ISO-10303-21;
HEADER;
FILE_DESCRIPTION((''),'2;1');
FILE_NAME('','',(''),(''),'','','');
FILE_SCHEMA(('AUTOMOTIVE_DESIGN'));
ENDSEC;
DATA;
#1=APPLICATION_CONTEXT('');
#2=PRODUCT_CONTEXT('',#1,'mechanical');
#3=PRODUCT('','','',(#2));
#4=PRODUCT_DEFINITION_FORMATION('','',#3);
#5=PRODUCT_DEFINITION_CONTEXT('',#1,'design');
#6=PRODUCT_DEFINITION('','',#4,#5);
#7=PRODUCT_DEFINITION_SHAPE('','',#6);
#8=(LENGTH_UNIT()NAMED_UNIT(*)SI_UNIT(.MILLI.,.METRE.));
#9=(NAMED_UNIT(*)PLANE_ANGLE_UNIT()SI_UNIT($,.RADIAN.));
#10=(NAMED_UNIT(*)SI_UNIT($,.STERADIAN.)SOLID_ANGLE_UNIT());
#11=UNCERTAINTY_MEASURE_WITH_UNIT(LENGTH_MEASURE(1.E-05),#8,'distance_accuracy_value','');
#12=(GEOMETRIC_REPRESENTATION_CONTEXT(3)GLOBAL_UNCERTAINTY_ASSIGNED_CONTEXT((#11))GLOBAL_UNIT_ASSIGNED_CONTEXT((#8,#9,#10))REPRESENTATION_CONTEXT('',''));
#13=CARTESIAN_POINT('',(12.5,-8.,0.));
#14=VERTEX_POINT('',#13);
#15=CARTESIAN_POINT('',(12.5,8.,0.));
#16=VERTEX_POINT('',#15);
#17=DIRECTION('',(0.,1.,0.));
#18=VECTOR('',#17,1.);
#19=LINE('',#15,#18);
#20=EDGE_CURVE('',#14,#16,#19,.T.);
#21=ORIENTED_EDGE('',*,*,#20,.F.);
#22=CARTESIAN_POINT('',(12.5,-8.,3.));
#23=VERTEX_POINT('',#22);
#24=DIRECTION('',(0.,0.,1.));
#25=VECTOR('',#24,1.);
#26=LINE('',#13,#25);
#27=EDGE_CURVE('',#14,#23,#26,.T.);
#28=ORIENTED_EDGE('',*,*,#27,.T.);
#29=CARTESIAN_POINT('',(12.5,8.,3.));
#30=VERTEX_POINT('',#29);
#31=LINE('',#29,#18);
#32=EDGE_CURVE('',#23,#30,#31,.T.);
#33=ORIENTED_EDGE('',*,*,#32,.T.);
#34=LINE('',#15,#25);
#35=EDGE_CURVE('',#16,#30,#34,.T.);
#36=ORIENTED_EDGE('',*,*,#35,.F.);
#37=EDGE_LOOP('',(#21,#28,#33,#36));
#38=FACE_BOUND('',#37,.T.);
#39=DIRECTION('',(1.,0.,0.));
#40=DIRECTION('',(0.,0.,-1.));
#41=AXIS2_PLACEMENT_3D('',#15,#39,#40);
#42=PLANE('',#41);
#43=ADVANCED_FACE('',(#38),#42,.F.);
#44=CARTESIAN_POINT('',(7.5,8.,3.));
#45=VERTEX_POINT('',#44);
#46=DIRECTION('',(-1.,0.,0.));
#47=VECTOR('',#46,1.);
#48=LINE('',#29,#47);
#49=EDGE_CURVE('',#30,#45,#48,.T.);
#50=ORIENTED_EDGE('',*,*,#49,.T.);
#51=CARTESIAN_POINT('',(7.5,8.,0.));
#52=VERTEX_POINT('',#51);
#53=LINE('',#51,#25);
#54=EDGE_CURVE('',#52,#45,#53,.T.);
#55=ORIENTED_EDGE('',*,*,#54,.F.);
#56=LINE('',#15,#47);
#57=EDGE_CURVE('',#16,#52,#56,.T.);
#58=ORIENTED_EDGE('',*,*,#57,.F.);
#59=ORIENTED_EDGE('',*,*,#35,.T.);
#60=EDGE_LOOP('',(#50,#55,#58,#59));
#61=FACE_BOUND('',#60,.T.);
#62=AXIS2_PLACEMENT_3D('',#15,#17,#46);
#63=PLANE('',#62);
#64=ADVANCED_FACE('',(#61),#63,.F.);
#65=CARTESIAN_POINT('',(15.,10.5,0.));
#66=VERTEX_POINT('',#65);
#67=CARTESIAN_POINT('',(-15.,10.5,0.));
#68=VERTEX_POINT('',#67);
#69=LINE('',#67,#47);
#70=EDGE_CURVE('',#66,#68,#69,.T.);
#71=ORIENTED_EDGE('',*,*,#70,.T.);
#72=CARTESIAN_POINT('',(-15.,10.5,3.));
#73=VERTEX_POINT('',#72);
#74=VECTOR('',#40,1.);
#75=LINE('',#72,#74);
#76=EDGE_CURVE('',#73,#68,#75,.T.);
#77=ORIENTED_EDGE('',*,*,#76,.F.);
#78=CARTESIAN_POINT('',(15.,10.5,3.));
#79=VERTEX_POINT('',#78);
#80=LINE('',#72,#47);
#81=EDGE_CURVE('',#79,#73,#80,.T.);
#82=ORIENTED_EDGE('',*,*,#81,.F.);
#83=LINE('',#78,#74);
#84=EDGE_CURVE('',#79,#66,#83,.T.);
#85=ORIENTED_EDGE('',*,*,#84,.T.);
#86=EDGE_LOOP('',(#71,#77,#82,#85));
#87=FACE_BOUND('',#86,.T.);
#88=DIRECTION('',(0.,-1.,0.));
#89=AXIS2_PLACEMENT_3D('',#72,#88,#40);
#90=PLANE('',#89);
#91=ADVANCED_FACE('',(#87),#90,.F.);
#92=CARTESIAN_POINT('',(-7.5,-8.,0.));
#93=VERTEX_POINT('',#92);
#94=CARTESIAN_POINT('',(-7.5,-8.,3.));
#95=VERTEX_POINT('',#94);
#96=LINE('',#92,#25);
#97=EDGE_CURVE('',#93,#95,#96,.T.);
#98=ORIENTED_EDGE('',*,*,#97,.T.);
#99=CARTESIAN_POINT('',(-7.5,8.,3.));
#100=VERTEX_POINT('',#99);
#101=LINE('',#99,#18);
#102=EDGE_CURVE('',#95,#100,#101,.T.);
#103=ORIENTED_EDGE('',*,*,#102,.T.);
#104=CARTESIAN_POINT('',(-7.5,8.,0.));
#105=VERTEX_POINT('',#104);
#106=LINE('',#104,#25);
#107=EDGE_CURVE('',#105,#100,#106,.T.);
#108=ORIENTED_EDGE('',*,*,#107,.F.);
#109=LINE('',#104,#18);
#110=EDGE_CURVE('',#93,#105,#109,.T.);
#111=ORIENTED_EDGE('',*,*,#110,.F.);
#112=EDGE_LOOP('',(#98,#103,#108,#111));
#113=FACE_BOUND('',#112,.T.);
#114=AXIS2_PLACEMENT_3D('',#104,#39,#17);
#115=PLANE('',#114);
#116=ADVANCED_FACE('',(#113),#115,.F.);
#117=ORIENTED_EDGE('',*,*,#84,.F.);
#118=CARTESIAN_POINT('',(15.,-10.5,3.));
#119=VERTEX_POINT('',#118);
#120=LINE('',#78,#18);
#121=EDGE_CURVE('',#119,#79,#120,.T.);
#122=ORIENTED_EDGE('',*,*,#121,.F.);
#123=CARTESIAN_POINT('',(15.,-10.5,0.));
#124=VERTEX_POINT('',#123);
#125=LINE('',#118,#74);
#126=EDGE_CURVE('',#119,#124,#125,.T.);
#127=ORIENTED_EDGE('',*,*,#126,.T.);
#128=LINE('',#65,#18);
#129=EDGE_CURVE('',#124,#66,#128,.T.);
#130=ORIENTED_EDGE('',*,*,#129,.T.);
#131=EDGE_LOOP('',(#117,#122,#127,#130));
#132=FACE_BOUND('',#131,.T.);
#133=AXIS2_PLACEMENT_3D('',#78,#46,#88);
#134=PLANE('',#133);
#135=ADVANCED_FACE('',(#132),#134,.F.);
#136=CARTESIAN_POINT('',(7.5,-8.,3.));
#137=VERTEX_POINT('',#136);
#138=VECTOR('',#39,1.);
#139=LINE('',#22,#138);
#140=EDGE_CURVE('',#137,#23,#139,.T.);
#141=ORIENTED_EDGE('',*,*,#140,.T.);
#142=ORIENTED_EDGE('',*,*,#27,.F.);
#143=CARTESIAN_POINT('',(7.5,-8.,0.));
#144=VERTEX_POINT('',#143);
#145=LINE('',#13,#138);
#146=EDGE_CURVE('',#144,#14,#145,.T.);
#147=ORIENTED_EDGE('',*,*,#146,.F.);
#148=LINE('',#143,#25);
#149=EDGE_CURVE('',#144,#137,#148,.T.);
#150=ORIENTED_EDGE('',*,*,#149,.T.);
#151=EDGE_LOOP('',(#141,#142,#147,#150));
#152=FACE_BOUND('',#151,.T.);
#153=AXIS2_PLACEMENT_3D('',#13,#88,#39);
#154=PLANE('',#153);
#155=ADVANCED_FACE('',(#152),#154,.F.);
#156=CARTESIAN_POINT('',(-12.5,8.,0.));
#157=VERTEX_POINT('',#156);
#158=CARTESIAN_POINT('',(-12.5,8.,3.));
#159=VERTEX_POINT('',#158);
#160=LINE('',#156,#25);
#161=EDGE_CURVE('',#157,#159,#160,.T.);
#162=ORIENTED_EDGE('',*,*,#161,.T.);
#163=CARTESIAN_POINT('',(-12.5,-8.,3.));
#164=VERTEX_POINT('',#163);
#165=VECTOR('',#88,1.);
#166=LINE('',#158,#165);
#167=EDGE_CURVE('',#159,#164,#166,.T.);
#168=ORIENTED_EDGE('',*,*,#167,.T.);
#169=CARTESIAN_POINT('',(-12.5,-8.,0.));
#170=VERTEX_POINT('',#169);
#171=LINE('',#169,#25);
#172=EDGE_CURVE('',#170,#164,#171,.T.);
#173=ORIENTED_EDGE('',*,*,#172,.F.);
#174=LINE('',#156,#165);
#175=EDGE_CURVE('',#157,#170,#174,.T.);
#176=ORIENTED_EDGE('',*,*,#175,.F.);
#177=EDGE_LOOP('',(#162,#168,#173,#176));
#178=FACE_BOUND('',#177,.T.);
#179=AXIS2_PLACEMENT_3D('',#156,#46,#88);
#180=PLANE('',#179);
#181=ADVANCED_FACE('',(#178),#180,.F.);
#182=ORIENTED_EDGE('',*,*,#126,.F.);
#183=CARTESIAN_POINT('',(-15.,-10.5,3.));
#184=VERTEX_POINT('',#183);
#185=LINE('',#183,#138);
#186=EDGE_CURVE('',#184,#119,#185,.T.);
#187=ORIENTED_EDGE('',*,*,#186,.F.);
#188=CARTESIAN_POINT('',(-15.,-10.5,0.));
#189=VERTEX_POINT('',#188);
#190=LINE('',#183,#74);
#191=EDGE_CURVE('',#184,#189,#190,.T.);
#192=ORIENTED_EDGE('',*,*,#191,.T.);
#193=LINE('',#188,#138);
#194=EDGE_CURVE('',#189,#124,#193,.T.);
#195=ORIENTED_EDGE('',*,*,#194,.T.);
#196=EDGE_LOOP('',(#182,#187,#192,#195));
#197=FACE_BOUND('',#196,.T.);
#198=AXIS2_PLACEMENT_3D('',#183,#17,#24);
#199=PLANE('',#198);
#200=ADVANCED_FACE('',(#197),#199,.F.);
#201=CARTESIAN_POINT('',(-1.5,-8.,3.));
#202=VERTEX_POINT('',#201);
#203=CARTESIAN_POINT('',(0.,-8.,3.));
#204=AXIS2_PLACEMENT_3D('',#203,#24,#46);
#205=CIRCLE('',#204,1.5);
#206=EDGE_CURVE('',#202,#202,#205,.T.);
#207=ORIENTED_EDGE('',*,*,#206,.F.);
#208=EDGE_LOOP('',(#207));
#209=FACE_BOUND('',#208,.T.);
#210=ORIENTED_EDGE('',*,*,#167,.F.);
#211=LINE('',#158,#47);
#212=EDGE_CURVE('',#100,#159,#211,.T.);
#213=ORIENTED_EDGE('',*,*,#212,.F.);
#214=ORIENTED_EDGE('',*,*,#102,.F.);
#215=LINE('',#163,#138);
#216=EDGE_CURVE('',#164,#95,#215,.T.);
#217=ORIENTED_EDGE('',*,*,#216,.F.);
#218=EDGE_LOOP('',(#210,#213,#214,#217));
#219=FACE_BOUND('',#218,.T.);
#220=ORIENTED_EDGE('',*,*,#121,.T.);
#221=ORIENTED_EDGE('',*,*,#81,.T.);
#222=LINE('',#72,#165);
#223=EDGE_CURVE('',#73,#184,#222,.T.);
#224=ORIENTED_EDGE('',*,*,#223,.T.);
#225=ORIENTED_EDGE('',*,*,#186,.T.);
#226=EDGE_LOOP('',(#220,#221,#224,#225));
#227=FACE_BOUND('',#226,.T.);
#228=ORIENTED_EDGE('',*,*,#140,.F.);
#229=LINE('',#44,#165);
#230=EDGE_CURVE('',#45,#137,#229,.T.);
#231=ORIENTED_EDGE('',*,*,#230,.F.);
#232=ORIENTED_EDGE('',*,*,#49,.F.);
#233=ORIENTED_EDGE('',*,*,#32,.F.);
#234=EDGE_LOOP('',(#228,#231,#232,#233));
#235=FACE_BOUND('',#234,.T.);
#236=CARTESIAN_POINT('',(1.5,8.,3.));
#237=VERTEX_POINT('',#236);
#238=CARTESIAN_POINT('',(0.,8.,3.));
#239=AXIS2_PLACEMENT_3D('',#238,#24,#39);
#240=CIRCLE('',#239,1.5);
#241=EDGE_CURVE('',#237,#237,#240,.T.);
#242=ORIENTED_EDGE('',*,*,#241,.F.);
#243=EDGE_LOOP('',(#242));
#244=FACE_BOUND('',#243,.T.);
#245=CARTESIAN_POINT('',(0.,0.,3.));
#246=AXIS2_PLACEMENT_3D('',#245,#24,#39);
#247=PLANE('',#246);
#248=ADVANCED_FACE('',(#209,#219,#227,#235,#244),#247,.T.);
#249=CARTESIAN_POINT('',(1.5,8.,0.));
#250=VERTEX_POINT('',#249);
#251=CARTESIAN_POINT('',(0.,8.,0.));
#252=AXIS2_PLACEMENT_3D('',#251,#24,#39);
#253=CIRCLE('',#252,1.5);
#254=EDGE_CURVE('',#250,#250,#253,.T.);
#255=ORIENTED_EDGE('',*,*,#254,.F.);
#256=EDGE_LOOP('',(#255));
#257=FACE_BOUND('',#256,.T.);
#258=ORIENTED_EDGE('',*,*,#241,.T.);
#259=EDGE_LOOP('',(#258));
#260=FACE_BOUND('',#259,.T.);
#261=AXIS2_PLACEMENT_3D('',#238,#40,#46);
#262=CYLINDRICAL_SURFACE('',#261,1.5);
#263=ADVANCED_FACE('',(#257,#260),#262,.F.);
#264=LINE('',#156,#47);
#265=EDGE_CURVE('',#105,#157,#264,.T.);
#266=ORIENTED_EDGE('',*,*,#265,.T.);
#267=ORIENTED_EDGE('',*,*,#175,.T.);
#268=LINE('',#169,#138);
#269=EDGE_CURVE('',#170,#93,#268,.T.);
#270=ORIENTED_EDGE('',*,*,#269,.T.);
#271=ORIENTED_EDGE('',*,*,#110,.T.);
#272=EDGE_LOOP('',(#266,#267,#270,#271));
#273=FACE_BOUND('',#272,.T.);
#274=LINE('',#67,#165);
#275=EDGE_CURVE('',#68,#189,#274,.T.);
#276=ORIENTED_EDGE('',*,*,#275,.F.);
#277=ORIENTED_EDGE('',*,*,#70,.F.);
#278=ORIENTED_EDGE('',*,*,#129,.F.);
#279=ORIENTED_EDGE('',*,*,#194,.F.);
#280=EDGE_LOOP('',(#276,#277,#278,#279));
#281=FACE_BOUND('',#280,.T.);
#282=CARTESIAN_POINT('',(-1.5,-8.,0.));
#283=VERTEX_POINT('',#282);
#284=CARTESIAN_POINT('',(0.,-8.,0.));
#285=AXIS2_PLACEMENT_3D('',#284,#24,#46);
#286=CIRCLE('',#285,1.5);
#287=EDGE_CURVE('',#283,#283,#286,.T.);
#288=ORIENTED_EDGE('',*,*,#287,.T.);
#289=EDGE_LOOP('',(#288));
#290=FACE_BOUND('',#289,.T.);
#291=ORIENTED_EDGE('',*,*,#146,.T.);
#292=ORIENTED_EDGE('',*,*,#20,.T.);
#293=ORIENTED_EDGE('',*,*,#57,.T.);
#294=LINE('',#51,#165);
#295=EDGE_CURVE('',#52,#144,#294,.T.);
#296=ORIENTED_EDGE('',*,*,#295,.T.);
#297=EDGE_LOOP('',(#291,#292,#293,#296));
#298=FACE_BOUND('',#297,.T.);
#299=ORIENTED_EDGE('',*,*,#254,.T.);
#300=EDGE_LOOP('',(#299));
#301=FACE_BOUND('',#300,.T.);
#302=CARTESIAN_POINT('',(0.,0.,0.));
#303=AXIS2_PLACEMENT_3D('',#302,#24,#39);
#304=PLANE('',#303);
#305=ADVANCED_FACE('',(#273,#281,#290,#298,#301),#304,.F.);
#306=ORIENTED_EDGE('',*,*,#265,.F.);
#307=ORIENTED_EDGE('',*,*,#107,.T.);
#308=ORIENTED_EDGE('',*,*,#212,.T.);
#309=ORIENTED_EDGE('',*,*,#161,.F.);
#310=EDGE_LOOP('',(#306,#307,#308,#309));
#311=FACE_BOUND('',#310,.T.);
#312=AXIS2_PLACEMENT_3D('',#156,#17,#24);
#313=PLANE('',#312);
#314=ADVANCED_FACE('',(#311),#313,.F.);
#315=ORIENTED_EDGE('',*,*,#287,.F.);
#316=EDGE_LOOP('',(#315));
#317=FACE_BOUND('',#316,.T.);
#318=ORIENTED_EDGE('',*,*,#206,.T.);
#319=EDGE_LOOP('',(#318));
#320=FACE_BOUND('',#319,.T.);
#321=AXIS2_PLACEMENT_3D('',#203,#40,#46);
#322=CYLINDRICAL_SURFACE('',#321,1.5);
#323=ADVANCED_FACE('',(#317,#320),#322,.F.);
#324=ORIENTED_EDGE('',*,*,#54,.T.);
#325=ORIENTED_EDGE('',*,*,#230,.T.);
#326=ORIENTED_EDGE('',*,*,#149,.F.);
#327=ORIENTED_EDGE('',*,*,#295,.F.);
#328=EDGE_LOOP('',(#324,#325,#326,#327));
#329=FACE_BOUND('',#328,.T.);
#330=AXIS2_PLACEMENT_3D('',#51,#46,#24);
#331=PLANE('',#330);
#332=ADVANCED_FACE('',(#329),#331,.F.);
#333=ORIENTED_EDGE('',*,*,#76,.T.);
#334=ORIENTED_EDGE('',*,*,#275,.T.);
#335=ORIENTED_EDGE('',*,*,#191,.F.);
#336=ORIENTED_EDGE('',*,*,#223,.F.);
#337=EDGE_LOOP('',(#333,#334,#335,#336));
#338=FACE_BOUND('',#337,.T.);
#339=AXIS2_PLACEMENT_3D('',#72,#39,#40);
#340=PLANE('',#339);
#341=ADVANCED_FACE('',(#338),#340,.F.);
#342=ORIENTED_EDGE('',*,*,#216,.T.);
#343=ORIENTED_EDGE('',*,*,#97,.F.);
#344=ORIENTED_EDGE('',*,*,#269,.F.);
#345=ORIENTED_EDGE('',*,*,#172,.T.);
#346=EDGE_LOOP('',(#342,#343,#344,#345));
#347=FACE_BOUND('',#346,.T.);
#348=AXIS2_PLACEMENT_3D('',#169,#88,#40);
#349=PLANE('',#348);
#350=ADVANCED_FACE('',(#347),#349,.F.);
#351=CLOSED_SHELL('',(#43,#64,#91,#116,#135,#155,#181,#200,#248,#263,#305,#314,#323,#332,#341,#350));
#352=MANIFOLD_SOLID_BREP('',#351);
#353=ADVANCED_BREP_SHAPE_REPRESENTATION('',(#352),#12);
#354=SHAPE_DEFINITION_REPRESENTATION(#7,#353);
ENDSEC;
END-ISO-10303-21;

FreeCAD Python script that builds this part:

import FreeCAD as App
import Part
import Sketcher
Q = App.Units.Quantity


def add_polygon(sketch, points):
    """Adds a closed chain of lines whose ends are joined by coincident constraints."""
    first, n = sketch.GeometryCount, len(points)
    for a, b in zip(points, points[1:] + points[:1]):
        sketch.addGeometry(Part.LineSegment(App.Vector(*a, 0), App.Vector(*b, 0)), False)
    for i in range(n):
        sketch.addConstraint(Sketcher.Constraint("Coincident", first + i, 2, first + (i + 1) % n, 1))

doc = App.newDocument("Part")
body = doc.addObject("PartDesign::Body", "Body")

# Sketch on XY plane
sketch1 = doc.addObject("Sketcher::SketchObject", "Sketch")
body.addObject(sketch1)
sketch1.AttachmentSupport = (doc.XY_Plane, [""])
sketch1.MapMode = "FlatFace"
add_polygon(sketch1, [(-15, 10.5), (-15, -10.5), (15, -10.5), (15, 10.5)])  # lines 0-3
sketch1.addGeometry(Part.Circle(App.Vector(0, -8, 0), App.Vector(0, 0, 1), 1.5), False)  # 4
sketch1.addGeometry(Part.Circle(App.Vector(0, 8, 0), App.Vector(0, 0, 1), 1.5), False)  # 5
sketch1.addConstraint(Sketcher.Constraint("Vertical", 0))
sketch1.addConstraint(Sketcher.Constraint("Horizontal", 1))
sketch1.addConstraint(Sketcher.Constraint("Vertical", 2))
sketch1.addConstraint(Sketcher.Constraint("Horizontal", 3))
sketch1.addConstraint(Sketcher.Constraint("Equal", 4, 5))
sketch1.addConstraint(Sketcher.Constraint("Symmetric", 4, 3, 5, 3, -1, 1))
sketch1.addConstraint(Sketcher.Constraint("Symmetric", 0, 2, 2, 2, -1, 1))
sketch1.addConstraint(Sketcher.Constraint("PointOnObject", 4, 3, -2))
sketch1.addConstraint(Sketcher.Constraint("Diameter", 4, Q("3 mm")))
sketch1.addConstraint(Sketcher.Constraint("DistanceX", 1, 1, 1, 2, Q("30 mm")))
sketch1.addConstraint(Sketcher.Constraint("DistanceY", 0, 2, 0, 1, Q("21 mm")))
sketch1.addConstraint(Sketcher.Constraint("DistanceY", 4, 3, -1, 1, Q("8 mm")))
pad1 = doc.addObject("PartDesign::Pad", "Pad")
body.addObject(pad1)
pad1.Profile = sketch1
pad1.Length = 3

# Sketch on XY plane
sketch2 = doc.addObject("Sketcher::SketchObject", "Sketch001")
body.addObject(sketch2)
sketch2.AttachmentSupport = (doc.XY_Plane, [""])
sketch2.MapMode = "FlatFace"
sketch2.AttachmentOffset = App.Placement(App.Vector(0, 0, 3), App.Rotation())
add_polygon(sketch2, [(-12, 8), (-12, -8), (-8, -8), (-8, 8)])  # lines 0-3
add_polygon(sketch2, [(8, 8), (8, -8), (12, -8), (12, 8)])  # lines 4-7
sketch2.addConstraint(Sketcher.Constraint("Vertical", 0))
sketch2.addConstraint(Sketcher.Constraint("Horizontal", 1))
sketch2.addConstraint(Sketcher.Constraint("Vertical", 2))
sketch2.addConstraint(Sketcher.Constraint("Horizontal", 3))
sketch2.addConstraint(Sketcher.Constraint("Vertical", 4))
sketch2.addConstraint(Sketcher.Constraint("Horizontal", 5))
sketch2.addConstraint(Sketcher.Constraint("Vertical", 6))
sketch2.addConstraint(Sketcher.Constraint("Horizontal", 7))
sketch2.addConstraint(Sketcher.Constraint("Symmetric", 2, 2, 4, 2, -1, 1))
sketch2.addConstraint(Sketcher.Constraint("Symmetric", 0, 2, 6, 2, -1, 1))
sketch2.addConstraint(Sketcher.Constraint("Horizontal", 1, 2, 4, 2))
sketch2.addConstraint(Sketcher.Constraint("DistanceX", 1, 1, 1, 2, Q("5 mm")))
sketch2.addConstraint(Sketcher.Constraint("DistanceY", 0, 2, 0, 1, Q("16 mm")))
sketch2.addConstraint(Sketcher.Constraint("DistanceX", 1, 2, 4, 2, Q("15 mm")))
pocket1 = doc.addObject("PartDesign::Pocket", "Pocket")
body.addObject(pocket1)
pocket1.Profile = sketch2
pocket1.Type = "ThroughAll"

doc.recompute()
